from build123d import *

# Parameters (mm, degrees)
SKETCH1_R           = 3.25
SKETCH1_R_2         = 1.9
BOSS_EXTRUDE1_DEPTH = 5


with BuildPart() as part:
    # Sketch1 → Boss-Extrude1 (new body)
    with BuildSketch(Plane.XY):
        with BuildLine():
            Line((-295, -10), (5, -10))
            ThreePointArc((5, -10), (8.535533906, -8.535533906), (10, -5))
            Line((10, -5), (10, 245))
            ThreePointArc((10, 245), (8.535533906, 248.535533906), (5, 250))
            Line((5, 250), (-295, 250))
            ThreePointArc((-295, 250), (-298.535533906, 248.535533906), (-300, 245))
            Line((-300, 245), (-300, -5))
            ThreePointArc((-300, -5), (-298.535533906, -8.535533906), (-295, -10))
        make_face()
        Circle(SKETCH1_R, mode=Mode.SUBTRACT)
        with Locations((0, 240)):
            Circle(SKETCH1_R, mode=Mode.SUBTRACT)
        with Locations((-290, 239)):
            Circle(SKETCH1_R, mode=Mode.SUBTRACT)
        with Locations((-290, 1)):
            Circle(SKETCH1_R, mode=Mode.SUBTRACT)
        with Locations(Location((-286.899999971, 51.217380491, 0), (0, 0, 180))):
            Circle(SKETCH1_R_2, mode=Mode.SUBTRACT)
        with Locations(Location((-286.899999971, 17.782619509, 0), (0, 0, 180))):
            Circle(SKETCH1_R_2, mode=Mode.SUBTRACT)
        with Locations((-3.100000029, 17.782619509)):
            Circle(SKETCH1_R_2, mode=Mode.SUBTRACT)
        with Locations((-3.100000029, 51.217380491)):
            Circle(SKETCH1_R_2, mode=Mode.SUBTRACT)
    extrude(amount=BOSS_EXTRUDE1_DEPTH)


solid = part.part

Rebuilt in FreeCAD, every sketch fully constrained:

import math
import FreeCAD as App
import Part
import Sketcher
from FreeCAD import Vector
Q = App.Units.Quantity

doc = App.newDocument("Part")
body = doc.addObject("PartDesign::Body", "Body")

# Sketch on XY plane
sketch1 = doc.addObject("Sketcher::SketchObject", "Sketch")
body.addObject(sketch1)
sketch1.AttachmentSupport = (doc.XY_Plane, [""])
sketch1.MapMode = "FlatFace"
sketch1.addGeometry(Part.LineSegment(Vector(-295, -10, 0), Vector(5, -10, 0)), False)
sketch1.addGeometry(Part.ArcOfCircle(Part.Circle(Vector(5, -5, 0), Vector(0, 0, 1), 5), math.radians(-90), math.radians(0)), False)
sketch1.addGeometry(Part.LineSegment(Vector(10, -5, 0), Vector(10, 245, 0)), False)
sketch1.addGeometry(Part.ArcOfCircle(Part.Circle(Vector(5, 245, 0), Vector(0, 0, 1), 5), math.radians(0), math.radians(90)), False)
sketch1.addGeometry(Part.LineSegment(Vector(5, 250, 0), Vector(-295, 250, 0)), False)
sketch1.addGeometry(Part.ArcOfCircle(Part.Circle(Vector(-295, 245, 0), Vector(0, 0, 1), 5), math.radians(90), math.radians(180)), False)
sketch1.addGeometry(Part.LineSegment(Vector(-300, 245, 0), Vector(-300, -5, 0)), False)
sketch1.addGeometry(Part.ArcOfCircle(Part.Circle(Vector(-295, -5, 0), Vector(0, 0, 1), 5), math.radians(180), math.radians(270)), False)
sketch1.addGeometry(Part.Circle(Vector(-290, 1, 0), Vector(0, 0, 1), 3.25), False)
sketch1.addGeometry(Part.Circle(Vector(-286.9, 17.78262, 0), Vector(0, 0, 1), 1.9), False)
sketch1.addGeometry(Part.Circle(Vector(-286.9, 51.21738, 0), Vector(0, 0, 1), 1.9), False)
sketch1.addGeometry(Part.Circle(Vector(0, 0, 0), Vector(0, 0, 1), 3.25), False)
sketch1.addGeometry(Part.Circle(Vector(-3.1, 17.78262, 0), Vector(0, 0, 1), 1.9), False)
sketch1.addGeometry(Part.Circle(Vector(-3.1, 51.21738, 0), Vector(0, 0, 1), 1.9), False)
sketch1.addGeometry(Part.Circle(Vector(-290, 239, 0), Vector(0, 0, 1), 3.25), False)
sketch1.addGeometry(Part.Circle(Vector(0, 240, 0), Vector(0, 0, 1), 3.25), False)
sketch1.addConstraint(Sketcher.Constraint("Tangent", 0, 2, 1, 1))
sketch1.addConstraint(Sketcher.Constraint("Tangent", 1, 2, 2, 1))
sketch1.addConstraint(Sketcher.Constraint("Tangent", 2, 2, 3, 1))
sketch1.addConstraint(Sketcher.Constraint("Tangent", 3, 2, 4, 1))
sketch1.addConstraint(Sketcher.Constraint("Tangent", 4, 2, 5, 1))
sketch1.addConstraint(Sketcher.Constraint("Tangent", 5, 2, 6, 1))
sketch1.addConstraint(Sketcher.Constraint("Tangent", 6, 2, 7, 1))
sketch1.addConstraint(Sketcher.Constraint("Tangent", 7, 2, 0, 1))
sketch1.addConstraint(Sketcher.Constraint("Horizontal", 0))
sketch1.addConstraint(Sketcher.Constraint("Vertical", 2))
sketch1.addConstraint(Sketcher.Constraint("Horizontal", 4))
sketch1.addConstraint(Sketcher.Constraint("Vertical", 6))
sketch1.addConstraint(Sketcher.Constraint("Coincident", 11, 3, -1, 1))
sketch1.addConstraint(Sketcher.Constraint("Equal", 1, 3))
sketch1.addConstraint(Sketcher.Constraint("Equal", 3, 5))
sketch1.addConstraint(Sketcher.Constraint("Equal", 5, 7))
sketch1.addConstraint(Sketcher.Constraint("Equal", 9, 10))
sketch1.addConstraint(Sketcher.Constraint("Equal", 8, 11))
sketch1.addConstraint(Sketcher.Constraint("Equal", 10, 12))
sketch1.addConstraint(Sketcher.Constraint("Equal", 12, 13))
sketch1.addConstraint(Sketcher.Constraint("Equal", 11, 14))
sketch1.addConstraint(Sketcher.Constraint("Equal", 14, 15))
sketch1.addConstraint(Sketcher.Constraint("PointOnObject", 15, 3, -2))
sketch1.addConstraint(Sketcher.Constraint("Horizontal", 9, 3, 12, 3))
sketch1.addConstraint(Sketcher.Constraint("Horizontal", 10, 3, 13, 3))
sketch1.addConstraint(Sketcher.Constraint("Vertical", 9, 3, 10, 3))
sketch1.addConstraint(Sketcher.Constraint("Vertical", 12, 3, 13, 3))
sketch1.addConstraint(Sketcher.Constraint("Vertical", 8, 3, 14, 3))
sketch1.addConstraint(Sketcher.Constraint("Radius", 1, Q("5 mm")))
sketch1.addConstraint(Sketcher.Constraint("Diameter", 8, Q("6.5 mm")))
sketch1.addConstraint(Sketcher.Constraint("Diameter", 9, Q("3.8 mm")))
sketch1.addConstraint(Sketcher.Constraint("DistanceX", 0, 1, 0, 2, Q("300 mm")))
sketch1.addConstraint(Sketcher.Constraint("DistanceY", 2, 1, 2, 2, Q("250 mm")))
sketch1.addConstraint(Sketcher.Constraint("DistanceX", -1, 1, 1, 3, Q("5 mm")))
sketch1.addConstraint(Sketcher.Constraint("DistanceY", 1, 3, -1, 1, Q("5 mm")))
sketch1.addConstraint(Sketcher.Constraint("DistanceX", 8, 3, -1, 1, Q("290 mm")))
sketch1.addConstraint(Sketcher.Constraint("DistanceY", -1, 1, 8, 3, Q("1 mm")))
sketch1.addConstraint(Sketcher.Constraint("DistanceY", -1, 1, 14, 3, Q("239 mm")))
sketch1.addConstraint(Sketcher.Constraint("DistanceY", -1, 1, 15, 3, Q("240 mm")))
sketch1.addConstraint(Sketcher.Constraint("DistanceX", 9, 3, -1, 1, Q("286.9 mm")))
sketch1.addConstraint(Sketcher.Constraint("DistanceX", 12, 3, -1, 1, Q("3.1 mm")))
sketch1.addConstraint(Sketcher.Constraint("DistanceY", -1, 1, 9, 3, Q("17.78262 mm")))
sketch1.addConstraint(Sketcher.Constraint("DistanceY", -1, 1, 10, 3, Q("51.21738 mm")))
pad1 = doc.addObject("PartDesign::Pad", "Pad")
body.addObject(pad1)
pad1.Profile = sketch1
pad1.Length = 5

doc.recompute()
